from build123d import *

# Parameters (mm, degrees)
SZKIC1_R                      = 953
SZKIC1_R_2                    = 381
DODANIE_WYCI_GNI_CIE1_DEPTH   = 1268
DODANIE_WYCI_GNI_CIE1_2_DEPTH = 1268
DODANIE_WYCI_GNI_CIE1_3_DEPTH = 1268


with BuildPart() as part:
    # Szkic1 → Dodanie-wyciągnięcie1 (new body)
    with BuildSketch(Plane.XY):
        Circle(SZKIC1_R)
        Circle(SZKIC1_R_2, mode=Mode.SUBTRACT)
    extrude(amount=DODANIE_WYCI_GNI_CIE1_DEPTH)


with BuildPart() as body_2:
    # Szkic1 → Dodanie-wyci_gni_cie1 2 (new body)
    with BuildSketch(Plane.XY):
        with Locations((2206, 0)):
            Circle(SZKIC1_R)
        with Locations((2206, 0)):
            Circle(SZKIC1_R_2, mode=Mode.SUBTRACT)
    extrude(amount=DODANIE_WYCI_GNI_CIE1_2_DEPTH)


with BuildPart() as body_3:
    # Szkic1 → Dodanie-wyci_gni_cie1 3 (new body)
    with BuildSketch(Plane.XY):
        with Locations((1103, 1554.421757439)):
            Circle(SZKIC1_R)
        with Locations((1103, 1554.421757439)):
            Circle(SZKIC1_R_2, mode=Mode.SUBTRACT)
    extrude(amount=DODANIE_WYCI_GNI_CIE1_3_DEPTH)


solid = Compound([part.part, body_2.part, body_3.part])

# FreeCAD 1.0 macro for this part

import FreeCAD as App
import Part
import Sketcher

doc = App.newDocument("Part")
params = doc.addObject("Spreadsheet::Sheet", "Params")
for row, (alias, value) in enumerate([
    ("sketch1_diameter", "1906 mm"),
    ("sketch1_diameter2", "762 mm"),
    ("pad1_length", "1268 mm"),
    ("sketch2_diameter", "1906 mm"),
    ("sketch2_diameter2", "762 mm"),
    ("pad2_length", "1268 mm"),
    ("sketch3_diameter", "1906 mm"),
    ("sketch3_diameter2", "762 mm"),
    ("pad3_length", "1268 mm"),
], start=1):
    params.set(f"A{row}", alias)
    params.set(f"B{row}", "=" + value)
    params.setAlias(f"B{row}", alias)

body = doc.addObject("PartDesign::Body", "Body")

# Sketch on XY plane
sketch1 = doc.addObject("Sketcher::SketchObject", "Sketch")
body.addObject(sketch1)
sketch1.AttachmentSupport = (doc.XY_Plane, [""])
sketch1.MapMode = "FlatFace"
sketch1.addGeometry([
    Part.Circle(App.Vector(0, 0, 0), App.Vector(0, 0, 1), 953),
    Part.Circle(App.Vector(0, 0, 0), App.Vector(0, 0, 1), 381),
], False)
sketch1.addConstraint([
    Sketcher.Constraint("Coincident", 0, 3, -1, 1),
    Sketcher.Constraint("Coincident", 1, 3, -1, 1),
    Sketcher.Constraint("Diameter", 0, 1906.0),
    Sketcher.Constraint("Diameter", 1, 762.0),
])
sketch1.setExpression("Constraints[2]", "Params.sketch1_diameter")
sketch1.setExpression("Constraints[3]", "Params.sketch1_diameter2")
pad1 = doc.addObject("PartDesign::Pad", "Pad")
body.addObject(pad1)
pad1.Profile = sketch1
pad1.setExpression("Length", "Params.pad1_length")
body2 = doc.addObject("PartDesign::Body", "Body001")

# Sketch on XY plane
sketch2 = doc.addObject("Sketcher::SketchObject", "Sketch001")
body2.addObject(sketch2)
sketch2.AttachmentSupport = (doc.getObject("XY_Plane001"), [""])
sketch2.MapMode = "FlatFace"
sketch2.addGeometry([
    Part.Circle(App.Vector(2206, 0, 0), App.Vector(0, 0, 1), 953),
    Part.Circle(App.Vector(2206, 0, 0), App.Vector(0, 0, 1), 381),
], False)
sketch2.addConstraint([
    Sketcher.Constraint("Coincident", 1, 3, 0, 3),
    Sketcher.Constraint("PointOnObject", 0, 3, -1),
    Sketcher.Constraint("Diameter", 0, 1906.0),
    Sketcher.Constraint("Diameter", 1, 762.0),
    Sketcher.Constraint("DistanceX", -1, 1, 0, 3, 2206.0),
])
sketch2.setExpression("Constraints[2]", "Params.sketch2_diameter")
sketch2.setExpression("Constraints[3]", "Params.sketch2_diameter2")
pad2 = doc.addObject("PartDesign::Pad", "Pad001")
body2.addObject(pad2)
pad2.Profile = sketch2
pad2.setExpression("Length", "Params.pad2_length")
body3 = doc.addObject("PartDesign::Body", "Body002")

# Sketch on XY plane
sketch3 = doc.addObject("Sketcher::SketchObject", "Sketch002")
body3.addObject(sketch3)
sketch3.AttachmentSupport = (doc.getObject("XY_Plane002"), [""])
sketch3.MapMode = "FlatFace"
sketch3.addGeometry([
    Part.Circle(App.Vector(1103, 1554, 0), App.Vector(0, 0, 1), 953),
    Part.Circle(App.Vector(1103, 1554, 0), App.Vector(0, 0, 1), 381),
], False)
sketch3.addConstraint([
    Sketcher.Constraint("Coincident", 1, 3, 0, 3),
    Sketcher.Constraint("Diameter", 0, 1906.0),
    Sketcher.Constraint("Diameter", 1, 762.0),
    Sketcher.Constraint("DistanceX", -1, 1, 0, 3, 1103.0),
    Sketcher.Constraint("DistanceY", -1, 1, 0, 3, 1554.421757),
])
sketch3.setExpression("Constraints[1]", "Params.sketch3_diameter")
sketch3.setExpression("Constraints[2]", "Params.sketch3_diameter2")
pad3 = doc.addObject("PartDesign::Pad", "Pad002")
body3.addObject(pad3)
pad3.Profile = sketch3
pad3.setExpression("Length", "Params.pad3_length")

doc.recompute()
